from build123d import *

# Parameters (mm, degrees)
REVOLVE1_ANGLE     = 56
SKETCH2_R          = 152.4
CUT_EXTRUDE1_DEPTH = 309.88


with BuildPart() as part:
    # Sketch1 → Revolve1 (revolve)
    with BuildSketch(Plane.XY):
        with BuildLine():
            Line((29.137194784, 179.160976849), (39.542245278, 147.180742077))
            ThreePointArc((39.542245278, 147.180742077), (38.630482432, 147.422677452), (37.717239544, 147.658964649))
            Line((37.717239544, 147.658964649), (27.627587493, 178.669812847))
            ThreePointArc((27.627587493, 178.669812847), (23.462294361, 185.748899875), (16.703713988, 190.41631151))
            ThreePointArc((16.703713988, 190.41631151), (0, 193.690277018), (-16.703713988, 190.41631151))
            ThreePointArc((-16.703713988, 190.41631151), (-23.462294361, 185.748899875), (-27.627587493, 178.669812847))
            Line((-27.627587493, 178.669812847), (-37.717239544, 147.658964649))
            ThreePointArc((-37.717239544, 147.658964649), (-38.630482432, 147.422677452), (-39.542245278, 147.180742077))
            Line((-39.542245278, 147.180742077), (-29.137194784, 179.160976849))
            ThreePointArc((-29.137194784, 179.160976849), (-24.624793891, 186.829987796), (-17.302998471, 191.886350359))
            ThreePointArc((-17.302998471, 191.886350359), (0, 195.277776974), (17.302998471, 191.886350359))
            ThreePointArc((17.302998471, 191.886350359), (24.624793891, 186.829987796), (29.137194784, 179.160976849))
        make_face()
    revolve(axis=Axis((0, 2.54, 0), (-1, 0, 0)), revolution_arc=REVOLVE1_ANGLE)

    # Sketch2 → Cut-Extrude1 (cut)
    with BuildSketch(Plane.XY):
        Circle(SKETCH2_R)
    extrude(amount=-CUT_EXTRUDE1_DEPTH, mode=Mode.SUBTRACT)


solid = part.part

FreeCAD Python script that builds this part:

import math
import FreeCAD as App
import Part
import Sketcher

V = App.Vector
Q = App.Units.Quantity

doc = App.newDocument("Part")
body = doc.addObject("PartDesign::Body", "Body")

# Sketch on XY plane
sketch1 = body.newObject("Sketcher::SketchObject", "Sketch")
sketch1.AttachmentSupport = (doc.getObject("XY_Plane"), [""])
sketch1.MapMode = "FlatFace"
sketch1.addGeometry([
    Part.LineSegment(V(39.5, 147.2, 0), V(29.1, 179.2, 0)),  # 0
    Part.ArcOfCircle(Part.Circle(V(9.5, 172.8, 0), V(0, 0, 1), 20.6), math.radians(18), math.radians(68)),  # 1
    Part.ArcOfCircle(Part.Circle(V(0, 149.4, 0), V(0, 0, 1), 45.8), math.radians(68), math.radians(112)),  # 2
    Part.ArcOfCircle(Part.Circle(V(-9.5, 172.8, 0), V(0, 0, 1), 20.6), math.radians(112), math.radians(162)),  # 3
    Part.LineSegment(V(-29.1, 179.2, 0), V(-39.5, 147.2, 0)),  # 4
    Part.ArcOfCircle(Part.Circle(V(0, 0, 0), V(0, 0, 1), 152.4), math.radians(104.33), math.radians(105.04)),  # 5
    Part.LineSegment(V(-37.7, 147.7, 0), V(-27.6, 178.7, 0)),  # 6
    Part.ArcOfCircle(Part.Circle(V(-9.5, 172.8, 0), V(0, 0, 1), 19.1), math.radians(112), math.radians(162)),  # 7
    Part.ArcOfCircle(Part.Circle(V(0, 149.4, 0), V(0, 0, 1), 44.2), math.radians(68), math.radians(112)),  # 8
    Part.ArcOfCircle(Part.Circle(V(9.5, 172.8, 0), V(0, 0, 1), 19.1), math.radians(18), math.radians(68)),  # 9
    Part.LineSegment(V(27.6, 178.7, 0), V(37.7, 147.7, 0)),  # 10
    Part.ArcOfCircle(Part.Circle(V(0, 0, 0), V(0, 0, 1), 152.4), math.radians(74.96), math.radians(75.67)),  # 11
], False)
sketch1.addGeometry(Part.LineSegment(V(39.5, 2.5, 0), V(-39.5, 2.5, 0)), True)  # axis
sketch1.addConstraint([
    Sketcher.Constraint("Tangent", 0, 2, 1, 1),
    Sketcher.Constraint("Tangent", 1, 2, 2, 1),
    Sketcher.Constraint("Tangent", 2, 2, 3, 1),
    Sketcher.Constraint("Tangent", 3, 2, 4, 1),
    Sketcher.Constraint("Coincident", 4, 2, 5, 2),
    Sketcher.Constraint("Coincident", 5, 1, 6, 1),
    Sketcher.Constraint("Tangent", 6, 2, 7, 2),
    Sketcher.Constraint("Tangent", 7, 1, 8, 2),
    Sketcher.Constraint("Tangent", 8, 1, 9, 2),
    Sketcher.Constraint("Tangent", 9, 1, 10, 1),
    Sketcher.Constraint("Coincident", 10, 2, 11, 2),
    Sketcher.Constraint("Coincident", 11, 1, 0, 1),
    Sketcher.Constraint("Horizontal", 12),
    Sketcher.Constraint("Coincident", 5, 3, -1, 1),
    Sketcher.Constraint("Coincident", 11, 3, -1, 1),
    Sketcher.Constraint("Coincident", 7, 3, 3, 3),
    Sketcher.Constraint("Coincident", 8, 3, 2, 3),
    Sketcher.Constraint("Coincident", 9, 3, 1, 3),
    Sketcher.Constraint("Equal", 1, 3),
    Sketcher.Constraint("Equal", 5, 11),
    Sketcher.Constraint("Symmetric", 1, 3, 3, 3, -2),
    Sketcher.Constraint("Parallel", 4, 6),
    Sketcher.Constraint("Parallel", 0, 10),
    Sketcher.Constraint("Horizontal", 0, 2, 3, 2),
    Sketcher.Constraint("Vertical", 11, 1, 12, 1),
    Sketcher.Constraint("Vertical", 4, 2, 12, 2),
    Sketcher.Constraint("Radius", 7, Q("0.75 in")),
    Sketcher.Constraint("Radius", 1, Q("0.8125 in")),
    Sketcher.Constraint("DistanceY", -1, 1, 12, 1, Q("0.1 in")),
    Sketcher.Constraint("Radius", 2, Q("45.835509 mm")),
    Sketcher.Constraint("Radius", 5, Q("152.399992 mm")),
    Sketcher.Constraint("DistanceX", 3, 3, 1, 3, Q("0.749 in")),
    Sketcher.Constraint("DistanceX", 12, 2, 12, 1, Q("79.084491 mm")),
    Sketcher.Constraint("DistanceY", 6, 2, 7, 1, Q("11.746499 mm")),
])
revolution = body.newObject("PartDesign::Revolution", "Revolution")
revolution.Profile = sketch1
revolution.ReferenceAxis = (sketch1, ["Axis0"])
revolution.Angle = 56

# Sketch on XY plane
sketch2 = body.newObject("Sketcher::SketchObject", "Sketch001")
sketch2.AttachmentSupport = (doc.getObject("XY_Plane"), [""])
sketch2.MapMode = "FlatFace"
sketch2.addGeometry(Part.Circle(V(0, 0, 0), V(0, 0, 1), 152), False)
sketch2.addConstraint([
    Sketcher.Constraint("Coincident", 0, 3, -1, 1),
    Sketcher.Constraint("Diameter", 0, Q("12 in")),
])
pocket1 = body.newObject("PartDesign::Pocket", "Pocket")
pocket1.Profile = sketch2
pocket1.Length = Q("12.2 in")

doc.recompute()
